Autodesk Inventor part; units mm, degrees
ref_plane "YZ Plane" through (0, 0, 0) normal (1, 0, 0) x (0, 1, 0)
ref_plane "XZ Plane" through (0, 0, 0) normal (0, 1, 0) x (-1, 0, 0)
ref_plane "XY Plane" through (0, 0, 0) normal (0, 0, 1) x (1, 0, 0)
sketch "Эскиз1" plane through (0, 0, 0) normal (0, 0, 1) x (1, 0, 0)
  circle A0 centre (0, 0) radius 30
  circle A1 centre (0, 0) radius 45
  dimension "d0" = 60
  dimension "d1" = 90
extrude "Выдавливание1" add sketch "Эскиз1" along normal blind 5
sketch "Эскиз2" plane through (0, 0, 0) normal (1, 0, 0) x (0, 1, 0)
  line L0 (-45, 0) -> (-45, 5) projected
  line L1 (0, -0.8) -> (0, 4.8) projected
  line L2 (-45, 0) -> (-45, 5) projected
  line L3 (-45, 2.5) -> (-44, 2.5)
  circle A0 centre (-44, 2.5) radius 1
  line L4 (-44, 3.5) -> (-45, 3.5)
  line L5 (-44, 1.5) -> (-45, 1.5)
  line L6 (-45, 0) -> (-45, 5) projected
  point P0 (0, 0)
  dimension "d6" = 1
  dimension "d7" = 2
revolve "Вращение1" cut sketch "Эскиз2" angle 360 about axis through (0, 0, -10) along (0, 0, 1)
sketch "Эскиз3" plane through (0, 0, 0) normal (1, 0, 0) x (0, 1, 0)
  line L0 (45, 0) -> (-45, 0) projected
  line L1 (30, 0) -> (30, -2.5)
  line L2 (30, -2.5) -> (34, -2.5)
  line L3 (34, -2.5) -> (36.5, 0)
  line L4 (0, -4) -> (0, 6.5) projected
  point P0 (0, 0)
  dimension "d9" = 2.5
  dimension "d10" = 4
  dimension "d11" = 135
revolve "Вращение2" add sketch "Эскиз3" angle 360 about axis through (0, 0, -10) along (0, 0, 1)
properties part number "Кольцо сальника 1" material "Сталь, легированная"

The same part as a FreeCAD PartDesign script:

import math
import FreeCAD as App
import Part
import Sketcher

V = App.Vector

doc = App.newDocument("Part")
body = doc.addObject("PartDesign::Body", "Body")

# Sketch on XY plane
sketch1 = body.newObject("Sketcher::SketchObject", "Sketch")
sketch1.AttachmentSupport = (doc.getObject("XY_Plane"), [""])
sketch1.MapMode = "FlatFace"
sketch1.addGeometry(Part.Circle(V(0, 0, 0), V(0, 0, 1), 45), False)
sketch1.addGeometry(Part.Circle(V(0, 0, 0), V(0, 0, 1), 30), False)
sketch1.addConstraint(Sketcher.Constraint("Coincident", 0, 3, -1, 1))
sketch1.addConstraint(Sketcher.Constraint("Coincident", 1, 3, -1, 1))
sketch1.addConstraint(Sketcher.Constraint("Diameter", 0, 90.0))
sketch1.addConstraint(Sketcher.Constraint("Diameter", 1, 60.0))
pad1 = body.newObject("PartDesign::Pad", "Pad")
pad1.Profile = sketch1
pad1.Length = 5

# Sketch on YZ plane
sketch2 = body.newObject("Sketcher::SketchObject", "Sketch001")
sketch2.AttachmentSupport = (doc.getObject("YZ_Plane"), [""])
sketch2.MapMode = "FlatFace"
sketch2.addGeometry(Part.LineSegment(V(-45, 1.5, 0), V(-44, 1.5, 0)), False)
sketch2.addGeometry(Part.ArcOfCircle(Part.Circle(V(-44, 2.5, 0), V(0, 0, 1), 1), math.radians(-90), math.radians(90)), False)
sketch2.addGeometry(Part.LineSegment(V(-44, 3.5, 0), V(-45, 3.5, 0)), False)
sketch2.addGeometry(Part.LineSegment(V(-45, 3.5, 0), V(-45, 1.5, 0)), False)
sketch2.addConstraint(Sketcher.Constraint("Tangent", 0, 2, 1, 1))
sketch2.addConstraint(Sketcher.Constraint("Tangent", 1, 2, 2, 1))
sketch2.addConstraint(Sketcher.Constraint("Coincident", 2, 2, 3, 1))
sketch2.addConstraint(Sketcher.Constraint("Coincident", 3, 2, 0, 1))
sketch2.addConstraint(Sketcher.Constraint("Horizontal", 0))
sketch2.addConstraint(Sketcher.Constraint("Horizontal", 2))
sketch2.addConstraint(Sketcher.Constraint("Vertical", 3))
sketch2.addConstraint(Sketcher.Constraint("Radius", 1, 1.0))
sketch2.addConstraint(Sketcher.Constraint("DistanceX", 0, 1, 0, 2, 1.0))
sketch2.addConstraint(Sketcher.Constraint("DistanceX", 1, 3, -1, 1, 44.0))
sketch2.addConstraint(Sketcher.Constraint("DistanceY", -1, 1, 1, 3, 2.5))
groove = body.newObject("PartDesign::Groove", "Groove")
groove.Profile = sketch2
groove.ReferenceAxis = (sketch2, ["V_Axis"])
groove.Angle = 360

# Sketch on YZ plane
sketch3 = body.newObject("Sketcher::SketchObject", "Sketch002")
sketch3.AttachmentSupport = (doc.getObject("YZ_Plane"), [""])
sketch3.MapMode = "FlatFace"
sketch3.addGeometry(Part.LineSegment(V(34, -2.5, 0), V(36.5, 0, 0)), False)
sketch3.addGeometry(Part.LineSegment(V(36.5, 0, 0), V(30, 0, 0)), False)
sketch3.addGeometry(Part.LineSegment(V(30, 0, 0), V(30, -2.5, 0)), False)
sketch3.addGeometry(Part.LineSegment(V(30, -2.5, 0), V(34, -2.5, 0)), False)
sketch3.addConstraint(Sketcher.Constraint("Coincident", 0, 2, 1, 1))
sketch3.addConstraint(Sketcher.Constraint("Coincident", 1, 2, 2, 1))
sketch3.addConstraint(Sketcher.Constraint("Coincident", 2, 2, 3, 1))
sketch3.addConstraint(Sketcher.Constraint("Coincident", 3, 2, 0, 1))
sketch3.addConstraint(Sketcher.Constraint("Horizontal", 1))
sketch3.addConstraint(Sketcher.Constraint("Vertical", 2))
sketch3.addConstraint(Sketcher.Constraint("Horizontal", 3))
sketch3.addConstraint(Sketcher.Constraint("PointOnObject", 0, 2, -1))
sketch3.addConstraint(Sketcher.Constraint("DistanceX", 3, 1, 3, 2, 4.0))
sketch3.addConstraint(Sketcher.Constraint("DistanceY", 2, 2, 2, 1, 2.5))
sketch3.addConstraint(Sketcher.Constraint("DistanceX", 3, 2, 0, 2, 2.5))
sketch3.addConstraint(Sketcher.Constraint("DistanceX", -1, 1, 1, 2, 30.0))
revolution = body.newObject("PartDesign::Revolution", "Revolution")
revolution.Profile = sketch3
revolution.ReferenceAxis = (sketch3, ["V_Axis"])
revolution.Angle = 360

doc.recompute()
